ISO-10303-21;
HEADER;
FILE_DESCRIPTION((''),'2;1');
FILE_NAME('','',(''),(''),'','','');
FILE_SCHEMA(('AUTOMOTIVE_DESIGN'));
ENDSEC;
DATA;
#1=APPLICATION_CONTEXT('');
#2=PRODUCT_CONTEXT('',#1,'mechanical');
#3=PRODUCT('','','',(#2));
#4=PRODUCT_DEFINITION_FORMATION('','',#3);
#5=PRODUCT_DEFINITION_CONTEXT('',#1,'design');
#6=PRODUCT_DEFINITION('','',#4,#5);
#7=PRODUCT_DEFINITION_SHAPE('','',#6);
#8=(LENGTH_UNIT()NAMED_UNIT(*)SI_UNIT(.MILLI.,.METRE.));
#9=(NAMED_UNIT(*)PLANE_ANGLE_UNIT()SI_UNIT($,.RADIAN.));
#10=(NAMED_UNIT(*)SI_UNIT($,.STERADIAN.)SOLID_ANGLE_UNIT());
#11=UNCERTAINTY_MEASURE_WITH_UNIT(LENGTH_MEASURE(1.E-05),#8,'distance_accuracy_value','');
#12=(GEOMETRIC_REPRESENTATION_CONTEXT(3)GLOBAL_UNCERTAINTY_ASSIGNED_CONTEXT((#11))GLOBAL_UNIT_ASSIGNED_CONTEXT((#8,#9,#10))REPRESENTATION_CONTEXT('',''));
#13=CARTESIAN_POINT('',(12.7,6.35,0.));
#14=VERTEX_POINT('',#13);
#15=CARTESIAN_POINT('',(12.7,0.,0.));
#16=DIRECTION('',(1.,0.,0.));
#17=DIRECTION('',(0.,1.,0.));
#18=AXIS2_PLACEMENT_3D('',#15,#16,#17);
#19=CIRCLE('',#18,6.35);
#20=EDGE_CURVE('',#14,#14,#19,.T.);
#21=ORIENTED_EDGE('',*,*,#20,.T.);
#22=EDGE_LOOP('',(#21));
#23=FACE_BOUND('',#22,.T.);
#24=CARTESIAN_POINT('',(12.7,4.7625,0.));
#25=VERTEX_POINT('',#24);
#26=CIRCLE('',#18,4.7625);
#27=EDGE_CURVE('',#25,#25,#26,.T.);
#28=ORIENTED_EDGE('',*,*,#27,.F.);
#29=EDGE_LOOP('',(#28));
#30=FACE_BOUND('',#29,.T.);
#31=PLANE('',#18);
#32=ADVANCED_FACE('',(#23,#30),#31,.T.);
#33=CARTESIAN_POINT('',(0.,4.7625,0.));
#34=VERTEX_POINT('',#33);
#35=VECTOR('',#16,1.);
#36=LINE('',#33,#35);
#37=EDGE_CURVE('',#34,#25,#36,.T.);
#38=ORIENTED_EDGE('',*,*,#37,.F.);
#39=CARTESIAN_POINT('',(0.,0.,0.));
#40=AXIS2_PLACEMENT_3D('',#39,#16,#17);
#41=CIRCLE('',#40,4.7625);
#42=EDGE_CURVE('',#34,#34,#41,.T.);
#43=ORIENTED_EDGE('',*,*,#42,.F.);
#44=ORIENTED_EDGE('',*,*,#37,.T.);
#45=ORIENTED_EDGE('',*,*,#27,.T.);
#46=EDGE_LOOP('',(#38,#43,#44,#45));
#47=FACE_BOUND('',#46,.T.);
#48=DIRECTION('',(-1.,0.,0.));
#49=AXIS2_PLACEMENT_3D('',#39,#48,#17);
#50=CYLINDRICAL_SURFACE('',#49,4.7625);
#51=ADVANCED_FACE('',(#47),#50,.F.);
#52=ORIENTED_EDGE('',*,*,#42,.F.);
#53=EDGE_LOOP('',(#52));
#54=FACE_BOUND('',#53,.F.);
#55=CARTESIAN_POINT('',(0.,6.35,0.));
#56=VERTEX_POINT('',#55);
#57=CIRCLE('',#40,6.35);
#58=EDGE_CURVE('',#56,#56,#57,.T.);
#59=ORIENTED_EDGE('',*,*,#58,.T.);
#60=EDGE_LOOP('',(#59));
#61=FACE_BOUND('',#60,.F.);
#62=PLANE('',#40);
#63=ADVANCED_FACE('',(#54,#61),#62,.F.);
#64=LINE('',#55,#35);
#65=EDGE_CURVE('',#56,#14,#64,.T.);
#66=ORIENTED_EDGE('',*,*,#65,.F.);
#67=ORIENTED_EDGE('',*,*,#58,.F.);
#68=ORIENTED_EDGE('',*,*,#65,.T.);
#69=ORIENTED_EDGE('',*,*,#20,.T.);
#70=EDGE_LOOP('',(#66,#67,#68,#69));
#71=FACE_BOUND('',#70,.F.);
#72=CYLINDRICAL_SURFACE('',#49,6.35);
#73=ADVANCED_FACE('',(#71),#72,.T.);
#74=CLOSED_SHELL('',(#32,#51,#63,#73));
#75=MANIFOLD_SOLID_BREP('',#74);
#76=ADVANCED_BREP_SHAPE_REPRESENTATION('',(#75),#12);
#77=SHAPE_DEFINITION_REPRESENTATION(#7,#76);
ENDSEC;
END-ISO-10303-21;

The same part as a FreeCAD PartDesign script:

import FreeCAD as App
import Part
import Sketcher
Q = App.Units.Quantity

doc = App.newDocument("Part")
body = doc.addObject("PartDesign::Body", "Body")

# Sketch on YZ plane
sketch1 = body.newObject("Sketcher::SketchObject", "Sketch")
sketch1.AttachmentSupport = (doc.getObject("YZ_Plane"), [""])
sketch1.MapMode = "FlatFace"
sketch1.addGeometry(Part.Circle(App.Vector(0, 0, 0), App.Vector(0, 0, 1), 6.3), False)
sketch1.addGeometry(Part.Circle(App.Vector(0, 0, 0), App.Vector(0, 0, 1), 4.8), False)
sketch1.addConstraint(Sketcher.Constraint("Coincident", 0, 3, -1, 1))
sketch1.addConstraint(Sketcher.Constraint("Coincident", 1, 3, -1, 1))
sketch1.addConstraint(Sketcher.Constraint("Diameter", 0, Q("0.5 in")))
sketch1.addConstraint(Sketcher.Constraint("Diameter", 1, Q("0.375 in")))
pad1 = body.newObject("PartDesign::Pad", "Pad")
pad1.Profile = sketch1
pad1.Length = Q("0.5 in")

doc.recompute()
